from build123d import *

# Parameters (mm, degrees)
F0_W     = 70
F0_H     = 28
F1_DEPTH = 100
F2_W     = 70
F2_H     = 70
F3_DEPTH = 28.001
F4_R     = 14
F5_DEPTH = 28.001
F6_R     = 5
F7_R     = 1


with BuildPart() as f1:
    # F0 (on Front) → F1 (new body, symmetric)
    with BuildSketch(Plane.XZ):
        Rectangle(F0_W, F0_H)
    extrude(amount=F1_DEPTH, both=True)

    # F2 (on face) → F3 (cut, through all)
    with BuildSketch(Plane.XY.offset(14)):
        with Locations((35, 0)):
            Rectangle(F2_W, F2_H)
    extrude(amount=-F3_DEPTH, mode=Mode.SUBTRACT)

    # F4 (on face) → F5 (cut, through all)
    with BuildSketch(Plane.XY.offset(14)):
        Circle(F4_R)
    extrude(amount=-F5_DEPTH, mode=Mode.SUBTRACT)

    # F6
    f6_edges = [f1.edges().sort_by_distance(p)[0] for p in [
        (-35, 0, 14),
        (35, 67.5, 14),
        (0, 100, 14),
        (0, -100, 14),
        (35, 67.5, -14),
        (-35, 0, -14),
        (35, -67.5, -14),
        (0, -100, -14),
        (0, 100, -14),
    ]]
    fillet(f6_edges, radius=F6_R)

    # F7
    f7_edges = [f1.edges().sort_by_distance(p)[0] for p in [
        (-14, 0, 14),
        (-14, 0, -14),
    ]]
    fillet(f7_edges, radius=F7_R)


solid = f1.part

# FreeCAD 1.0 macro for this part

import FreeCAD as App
import Part
import Sketcher

V = App.Vector
Q = App.Units.Quantity


def edges_at(feature, points):
    """Names of the edges that pass closest to the given points."""
    edges = feature.Shape.Edges
    near = lambda p: min(range(len(edges)), key=lambda i: edges[i].distToShape(Part.Vertex(*p))[0])
    return sorted({f"Edge{near(p) + 1}" for p in points})


def add_polygon(sketch, points):
    """Adds a closed chain of lines whose ends are joined by coincident constraints."""
    first, n = sketch.GeometryCount, len(points)
    for a, b in zip(points, points[1:] + points[:1]):
        sketch.addGeometry(Part.LineSegment(App.Vector(*a, 0), App.Vector(*b, 0)), False)
    for i in range(n):
        sketch.addConstraint(Sketcher.Constraint("Coincident", first + i, 2, first + (i + 1) % n, 1))

doc = App.newDocument("Part")
params = doc.addObject("Spreadsheet::Sheet", "Params")
for row, (alias, value) in enumerate([
    ("sketch1_width", "70 mm"),
    ("sketch1_height", "28 mm"),
    ("pad1_length", "200 mm"),
    ("sketch2_width", "70 mm"),
    ("sketch3_diameter", "28 mm"),
    ("fillet_radius", "5 mm"),
    ("fillet2_radius", "1 mm"),
], start=1):
    params.set(f"A{row}", alias)
    params.set(f"B{row}", "=" + value)
    params.setAlias(f"B{row}", alias)

body = doc.addObject("PartDesign::Body", "Body")

# Sketch on XZ plane
sketch1 = doc.addObject("Sketcher::SketchObject", "Sketch")
body.addObject(sketch1)
sketch1.AttachmentSupport = (doc.XZ_Plane, [""])
sketch1.MapMode = "FlatFace"
add_polygon(sketch1, [(-35, 14), (-35, -14), (35, -14), (35, 14)])  # lines 0-3
sketch1.addConstraint([
    Sketcher.Constraint("Vertical", 0),
    Sketcher.Constraint("Horizontal", 1),
    Sketcher.Constraint("Vertical", 2),
    Sketcher.Constraint("Horizontal", 3),
    Sketcher.Constraint("Symmetric", 0, 2, 2, 2, -1, 1),
    Sketcher.Constraint("DistanceX", 1, 1, 1, 2, Q("70 mm")),
    Sketcher.Constraint("DistanceY", 0, 2, 0, 1, Q("28 mm")),
])
sketch1.setExpression("Constraints[9]", "Params.sketch1_width")
sketch1.setExpression("Constraints[10]", "Params.sketch1_height")
pad1 = doc.addObject("PartDesign::Pad", "Pad")
body.addObject(pad1)
pad1.Profile = sketch1
pad1.setExpression("Length", "Params.pad1_length")
pad1.Midplane = True

# Sketch on XY plane
sketch2 = doc.addObject("Sketcher::SketchObject", "Sketch001")
body.addObject(sketch2)
sketch2.AttachmentSupport = (doc.XY_Plane, [""])
sketch2.MapMode = "FlatFace"
sketch2.AttachmentOffset = App.Placement(V(0, 0, 14), App.Rotation())
add_polygon(sketch2, [(0, 35), (0, -35), (70, -35), (70, 35)])  # lines 0-3
sketch2.addConstraint([
    Sketcher.Constraint("Vertical", 0),
    Sketcher.Constraint("Horizontal", 1),
    Sketcher.Constraint("Vertical", 2),
    Sketcher.Constraint("Horizontal", 3),
    Sketcher.Constraint("Symmetric", 0, 2, 3, 2, -1, 1),
    Sketcher.Constraint("Equal", 3, 0),
    Sketcher.Constraint("DistanceX", 1, 1, 1, 2, Q("70 mm")),
])
sketch2.setExpression("Constraints[10]", "Params.sketch2_width")
pocket1 = doc.addObject("PartDesign::Pocket", "Pocket")
body.addObject(pocket1)
pocket1.Profile = sketch2
pocket1.Type = "ThroughAll"

# Sketch on XY plane
sketch3 = doc.addObject("Sketcher::SketchObject", "Sketch002")
body.addObject(sketch3)
sketch3.AttachmentSupport = (doc.XY_Plane, [""])
sketch3.MapMode = "FlatFace"
sketch3.AttachmentOffset = App.Placement(V(0, 0, 14), App.Rotation())
sketch3.addGeometry(Part.Circle(V(0, 0, 0), V(0, 0, 1), 14), False)
sketch3.addConstraint([
    Sketcher.Constraint("Coincident", 0, 3, -1, 1),
    Sketcher.Constraint("Diameter", 0, Q("28 mm")),
])
sketch3.setExpression("Constraints[1]", "Params.sketch3_diameter")
pocket2 = doc.addObject("PartDesign::Pocket", "Pocket001")
body.addObject(pocket2)
pocket2.Profile = sketch3
pocket2.Type = "ThroughAll"
doc.recompute()

fillet = doc.addObject("PartDesign::Fillet", "Fillet")
body.addObject(fillet)
fillet.Base = (pocket2, edges_at(pocket2, [
    (-35, 0, 14),
    (35, 67.5, 14),
    (0, 100, 14),
    (0, -100, 14),
    (35, 67.5, -14),
    (-35, 0, -14),
    (35, -67.5, -14),
    (0, -100, -14),
    (0, 100, -14),
]))
fillet.setExpression("Radius", "Params.fillet_radius")
doc.recompute()

fillet2 = doc.addObject("PartDesign::Fillet", "Fillet001")
body.addObject(fillet2)
fillet2.Base = (fillet, edges_at(fillet, [(-14, 0, 14), (-14, 0, -14)]))
fillet2.setExpression("Radius", "Params.fillet2_radius")

doc.recompute()
